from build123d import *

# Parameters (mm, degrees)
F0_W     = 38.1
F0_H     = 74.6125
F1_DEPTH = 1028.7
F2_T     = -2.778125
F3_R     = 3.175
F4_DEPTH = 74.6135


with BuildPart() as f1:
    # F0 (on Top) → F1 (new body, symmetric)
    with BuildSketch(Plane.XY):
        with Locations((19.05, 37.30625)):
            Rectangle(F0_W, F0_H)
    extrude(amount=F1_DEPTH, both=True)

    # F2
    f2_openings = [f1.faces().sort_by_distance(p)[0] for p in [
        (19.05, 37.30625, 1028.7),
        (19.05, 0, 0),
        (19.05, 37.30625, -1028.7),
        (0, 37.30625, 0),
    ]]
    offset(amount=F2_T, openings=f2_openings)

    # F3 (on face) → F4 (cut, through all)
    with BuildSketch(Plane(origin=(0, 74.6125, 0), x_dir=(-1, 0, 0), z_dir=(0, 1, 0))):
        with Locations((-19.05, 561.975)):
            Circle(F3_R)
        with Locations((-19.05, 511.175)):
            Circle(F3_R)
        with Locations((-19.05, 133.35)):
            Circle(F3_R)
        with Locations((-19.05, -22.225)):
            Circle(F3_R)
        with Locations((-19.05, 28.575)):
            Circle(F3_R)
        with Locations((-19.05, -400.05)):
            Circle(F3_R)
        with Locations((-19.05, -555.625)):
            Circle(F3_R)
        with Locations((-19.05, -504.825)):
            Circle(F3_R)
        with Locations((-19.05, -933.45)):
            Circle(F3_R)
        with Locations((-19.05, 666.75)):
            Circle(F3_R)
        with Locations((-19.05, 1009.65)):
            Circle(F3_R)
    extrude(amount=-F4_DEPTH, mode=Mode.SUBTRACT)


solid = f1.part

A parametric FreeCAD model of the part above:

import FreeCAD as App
import Part
import Sketcher
from FreeCAD import Vector
Q = App.Units.Quantity


def faces_at(feature, points):
    """Names of the faces that lie closest to the given points."""
    faces = feature.Shape.Faces
    near = lambda p: min(range(len(faces)), key=lambda i: faces[i].distToShape(Part.Vertex(*p))[0])
    return sorted({f"Face{near(p) + 1}" for p in points})

doc = App.newDocument("Part")
body = doc.addObject("PartDesign::Body", "Body")

# Sketch on XY plane
sketch1 = doc.addObject("Sketcher::SketchObject", "Sketch")
body.addObject(sketch1)
sketch1.AttachmentSupport = (doc.XY_Plane, [""])
sketch1.MapMode = "FlatFace"
sketch1.addGeometry(Part.LineSegment(Vector(0, 74.6125, 0), Vector(0, 0, 0)), False)
sketch1.addGeometry(Part.LineSegment(Vector(0, 0, 0), Vector(38.1, 0, 0)), False)
sketch1.addGeometry(Part.LineSegment(Vector(38.1, 0, 0), Vector(38.1, 74.6125, 0)), False)
sketch1.addGeometry(Part.LineSegment(Vector(38.1, 74.6125, 0), Vector(0, 74.6125, 0)), False)
sketch1.addConstraint(Sketcher.Constraint("Coincident", 0, 2, 1, 1))
sketch1.addConstraint(Sketcher.Constraint("Coincident", 1, 2, 2, 1))
sketch1.addConstraint(Sketcher.Constraint("Coincident", 2, 2, 3, 1))
sketch1.addConstraint(Sketcher.Constraint("Coincident", 3, 2, 0, 1))
sketch1.addConstraint(Sketcher.Constraint("Vertical", 0))
sketch1.addConstraint(Sketcher.Constraint("Horizontal", 1))
sketch1.addConstraint(Sketcher.Constraint("Vertical", 2))
sketch1.addConstraint(Sketcher.Constraint("Horizontal", 3))
sketch1.addConstraint(Sketcher.Constraint("Coincident", 0, 2, -1, 1))
sketch1.addConstraint(Sketcher.Constraint("DistanceX", 1, 1, 1, 2, Q("1.5 in")))
sketch1.addConstraint(Sketcher.Constraint("DistanceY", 0, 2, 0, 1, Q("2.9375 in")))
pad1 = doc.addObject("PartDesign::Pad", "Pad")
body.addObject(pad1)
pad1.Profile = sketch1
pad1.Length = Q("81 in")
pad1.Midplane = True
doc.recompute()

thickness = doc.addObject("PartDesign::Thickness", "Thickness")
body.addObject(thickness)
thickness.Base = (pad1, faces_at(pad1, [
    (19.05, 37.306, 1028.7),
    (19.05, 0, 0),
    (19.05, 37.306, -1028.7),
    (0, 37.306, 0),
]))
thickness.Value = Q("0.109375 in")
thickness.Reversed = True
thickness.Join = "Arc"

# Sketch on XZ plane
sketch2 = doc.addObject("Sketcher::SketchObject", "Sketch001")
body.addObject(sketch2)
sketch2.AttachmentSupport = (doc.XZ_Plane, [""])
sketch2.MapMode = "FlatFace"
sketch2.AttachmentOffset = App.Placement(Vector(0, 0, -2.9375 * 25.4), App.Rotation())
sketch2.addGeometry(Part.Circle(Vector(19.05, 561.975, 0), Vector(0, 0, 1), 3.175), False)
sketch2.addGeometry(Part.Circle(Vector(19.05, 511.175, 0), Vector(0, 0, 1), 3.175), False)
sketch2.addGeometry(Part.Circle(Vector(19.05, 133.35, 0), Vector(0, 0, 1), 3.175), False)
sketch2.addGeometry(Part.Circle(Vector(19.05, -22.225, 0), Vector(0, 0, 1), 3.175), False)
sketch2.addGeometry(Part.Circle(Vector(19.05, 28.575, 0), Vector(0, 0, 1), 3.175), False)
sketch2.addGeometry(Part.Circle(Vector(19.05, -400.05, 0), Vector(0, 0, 1), 3.175), False)
sketch2.addGeometry(Part.Circle(Vector(19.05, -555.625, 0), Vector(0, 0, 1), 3.175), False)
sketch2.addGeometry(Part.Circle(Vector(19.05, -504.825, 0), Vector(0, 0, 1), 3.175), False)
sketch2.addGeometry(Part.Circle(Vector(19.05, -933.45, 0), Vector(0, 0, 1), 3.175), False)
sketch2.addGeometry(Part.Circle(Vector(19.05, 666.75, 0), Vector(0, 0, 1), 3.175), False)
sketch2.addGeometry(Part.Circle(Vector(19.05, 1009.65, 0), Vector(0, 0, 1), 3.175), False)
sketch2.addConstraint(Sketcher.Constraint("Equal", 0, 1))
sketch2.addConstraint(Sketcher.Constraint("Equal", 1, 2))
sketch2.addConstraint(Sketcher.Constraint("Equal", 2, 3))
sketch2.addConstraint(Sketcher.Constraint("Equal", 3, 4))
sketch2.addConstraint(Sketcher.Constraint("Equal", 4, 5))
sketch2.addConstraint(Sketcher.Constraint("Equal", 5, 6))
sketch2.addConstraint(Sketcher.Constraint("Equal", 6, 7))
sketch2.addConstraint(Sketcher.Constraint("Equal", 7, 8))
sketch2.addConstraint(Sketcher.Constraint("Equal", 8, 9))
sketch2.addConstraint(Sketcher.Constraint("Equal", 9, 10))
sketch2.addConstraint(Sketcher.Constraint("Vertical", 0, 3, 1, 3))
sketch2.addConstraint(Sketcher.Constraint("Vertical", 1, 3, 2, 3))
sketch2.addConstraint(Sketcher.Constraint("Vertical", 2, 3, 3, 3))
sketch2.addConstraint(Sketcher.Constraint("Vertical", 3, 3, 4, 3))
sketch2.addConstraint(Sketcher.Constraint("Vertical", 4, 3, 5, 3))
sketch2.addConstraint(Sketcher.Constraint("Vertical", 5, 3, 6, 3))
sketch2.addConstraint(Sketcher.Constraint("Vertical", 6, 3, 7, 3))
sketch2.addConstraint(Sketcher.Constraint("Vertical", 7, 3, 8, 3))
sketch2.addConstraint(Sketcher.Constraint("Vertical", 8, 3, 9, 3))
sketch2.addConstraint(Sketcher.Constraint("Vertical", 9, 3, 10, 3))
sketch2.addConstraint(Sketcher.Constraint("Diameter", 0, Q("0.25 in")))
sketch2.addConstraint(Sketcher.Constraint("DistanceY", 1, 3, 0, 3, Q("2 in")))
sketch2.addConstraint(Sketcher.Constraint("DistanceY", 3, 3, 1, 3, Q("21 in")))
sketch2.addConstraint(Sketcher.Constraint("DistanceY", 3, 3, 4, 3, Q("2 in")))
sketch2.addConstraint(Sketcher.Constraint("DistanceY", 5, 3, 2, 3, Q("21 in")))
sketch2.addConstraint(Sketcher.Constraint("DistanceY", 6, 3, 3, 3, Q("21 in")))
sketch2.addConstraint(Sketcher.Constraint("DistanceY", 6, 3, 7, 3, Q("2 in")))
sketch2.addConstraint(Sketcher.Constraint("DistanceY", 8, 3, 5, 3, Q("21 in")))
sketch2.addConstraint(Sketcher.Constraint("DistanceY", 2, 3, 9, 3, Q("21 in")))
sketch2.addConstraint(Sketcher.Constraint("DistanceY", 9, 3, 10, 3, Q("13.5 in")))
sketch2.addConstraint(Sketcher.Constraint("DistanceX", -1, 1, 0, 3, Q("0.75 in")))
sketch2.addConstraint(Sketcher.Constraint("DistanceY", -1, 1, 2, 3, Q("5.25 in")))
sketch2.addConstraint(Sketcher.Constraint("DistanceY", -1, 1, 0, 3, Q("22.125 in")))
pocket1 = doc.addObject("PartDesign::Pocket", "Pocket")
body.addObject(pocket1)
pocket1.Profile = sketch2
pocket1.Type = "ThroughAll"
pocket1.Reversed = True

doc.recompute()
